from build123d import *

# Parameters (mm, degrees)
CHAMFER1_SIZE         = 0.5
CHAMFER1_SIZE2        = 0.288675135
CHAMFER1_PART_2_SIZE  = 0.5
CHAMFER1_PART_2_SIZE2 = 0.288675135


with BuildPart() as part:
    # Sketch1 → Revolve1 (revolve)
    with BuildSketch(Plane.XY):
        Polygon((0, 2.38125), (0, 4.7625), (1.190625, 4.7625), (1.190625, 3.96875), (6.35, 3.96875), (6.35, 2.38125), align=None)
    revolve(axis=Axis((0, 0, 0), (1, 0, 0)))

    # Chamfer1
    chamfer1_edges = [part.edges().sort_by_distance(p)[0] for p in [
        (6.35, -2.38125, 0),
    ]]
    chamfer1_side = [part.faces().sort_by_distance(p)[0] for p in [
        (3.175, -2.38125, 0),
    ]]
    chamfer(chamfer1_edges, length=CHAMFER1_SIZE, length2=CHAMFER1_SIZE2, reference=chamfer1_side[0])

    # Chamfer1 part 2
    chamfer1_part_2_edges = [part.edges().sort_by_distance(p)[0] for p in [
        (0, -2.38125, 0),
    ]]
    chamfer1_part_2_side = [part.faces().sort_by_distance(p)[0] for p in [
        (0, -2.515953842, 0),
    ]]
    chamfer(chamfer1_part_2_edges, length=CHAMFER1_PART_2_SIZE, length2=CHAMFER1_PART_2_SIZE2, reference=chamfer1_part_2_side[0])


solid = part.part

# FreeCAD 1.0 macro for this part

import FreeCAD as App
import Part
import Sketcher
Q = App.Units.Quantity


def edges_at(feature, points):
    """Names of the edges that pass closest to the given points."""
    edges = feature.Shape.Edges
    near = lambda p: min(range(len(edges)), key=lambda i: edges[i].distToShape(Part.Vertex(*p))[0])
    return sorted({f"Edge{near(p) + 1}" for p in points})


def add_polygon(sketch, points):
    """Adds a closed chain of lines whose ends are joined by coincident constraints."""
    first, n = sketch.GeometryCount, len(points)
    for a, b in zip(points, points[1:] + points[:1]):
        sketch.addGeometry(Part.LineSegment(App.Vector(*a, 0), App.Vector(*b, 0)), False)
    for i in range(n):
        sketch.addConstraint(Sketcher.Constraint("Coincident", first + i, 2, first + (i + 1) % n, 1))

doc = App.newDocument("Part")
params = doc.addObject("Spreadsheet::Sheet", "Params")
for row, (alias, value) in enumerate([
    ("sketch1_width", "0.25 in"),
    ("sketch1_width2", "0.203125 in"),
    ("sketch1_height", "0.09375 in"),
    ("sketch1_height2", "0.0625 in"),
    ("revolution_angle", "360 deg"),
    ("chamfer_size", "0.5 mm"),
    ("chamfer_size2", "0.288675 mm"),
    ("chamfer2_size", "0.5 mm"),
    ("chamfer2_size2", "0.288675 mm"),
], start=1):
    params.set(f"A{row}", alias)
    params.set(f"B{row}", "=" + value)
    params.setAlias(f"B{row}", alias)

body = doc.addObject("PartDesign::Body", "Body")

# Sketch on XY plane
sketch1 = doc.addObject("Sketcher::SketchObject", "Sketch")
body.addObject(sketch1)
sketch1.AttachmentSupport = (doc.XY_Plane, [""])
sketch1.MapMode = "FlatFace"
add_polygon(sketch1, [(0, 4.8), (0, 2.4), (6.3, 2.4), (6.3, 4), (1.2, 4), (1.2, 4.8)])  # lines 0-5
sketch1.addConstraint([
    Sketcher.Constraint("Vertical", 0),
    Sketcher.Constraint("Horizontal", 1),
    Sketcher.Constraint("Vertical", 2),
    Sketcher.Constraint("Horizontal", 3),
    Sketcher.Constraint("Vertical", 4),
    Sketcher.Constraint("Horizontal", 5),
    Sketcher.Constraint("PointOnObject", 0, 2, -2),
    Sketcher.Constraint("DistanceX", 1, 1, 1, 2, Q("0.25 in")),
    Sketcher.Constraint("DistanceX", 3, 2, 3, 1, Q("0.203125 in")),
    Sketcher.Constraint("DistanceY", 0, 2, 0, 1, Q("0.09375 in")),
    Sketcher.Constraint("DistanceY", 2, 1, 2, 2, Q("0.0625 in")),
    Sketcher.Constraint("DistanceY", -1, 1, 0, 2, Q("0.09375 in")),
])
sketch1.setExpression("Constraints[13]", "Params.sketch1_width")
sketch1.setExpression("Constraints[14]", "Params.sketch1_width2")
sketch1.setExpression("Constraints[15]", "Params.sketch1_height")
sketch1.setExpression("Constraints[16]", "Params.sketch1_height2")
revolution = doc.addObject("PartDesign::Revolution", "Revolution")
body.addObject(revolution)
revolution.Profile = sketch1
revolution.ReferenceAxis = (sketch1, ["H_Axis"])
revolution.setExpression("Angle", "Params.revolution_angle")
doc.recompute()

chamfer = doc.addObject("PartDesign::Chamfer", "Chamfer")
body.addObject(chamfer)
chamfer.Base = (revolution, edges_at(revolution, [(6.35, -2.381, 0)]))
chamfer.ChamferType = "Two distances"
chamfer.setExpression("Size", "Params.chamfer_size")
chamfer.setExpression("Size2", "Params.chamfer_size2")
doc.recompute()

chamfer2 = doc.addObject("PartDesign::Chamfer", "Chamfer001")
body.addObject(chamfer2)
chamfer2.Base = (chamfer, edges_at(chamfer, [(0, -2.381, 0)]))
chamfer2.ChamferType = "Two distances"
chamfer2.setExpression("Size", "Params.chamfer2_size")
chamfer2.setExpression("Size2", "Params.chamfer2_size2")
chamfer2.FlipDirection = True

doc.recompute()
